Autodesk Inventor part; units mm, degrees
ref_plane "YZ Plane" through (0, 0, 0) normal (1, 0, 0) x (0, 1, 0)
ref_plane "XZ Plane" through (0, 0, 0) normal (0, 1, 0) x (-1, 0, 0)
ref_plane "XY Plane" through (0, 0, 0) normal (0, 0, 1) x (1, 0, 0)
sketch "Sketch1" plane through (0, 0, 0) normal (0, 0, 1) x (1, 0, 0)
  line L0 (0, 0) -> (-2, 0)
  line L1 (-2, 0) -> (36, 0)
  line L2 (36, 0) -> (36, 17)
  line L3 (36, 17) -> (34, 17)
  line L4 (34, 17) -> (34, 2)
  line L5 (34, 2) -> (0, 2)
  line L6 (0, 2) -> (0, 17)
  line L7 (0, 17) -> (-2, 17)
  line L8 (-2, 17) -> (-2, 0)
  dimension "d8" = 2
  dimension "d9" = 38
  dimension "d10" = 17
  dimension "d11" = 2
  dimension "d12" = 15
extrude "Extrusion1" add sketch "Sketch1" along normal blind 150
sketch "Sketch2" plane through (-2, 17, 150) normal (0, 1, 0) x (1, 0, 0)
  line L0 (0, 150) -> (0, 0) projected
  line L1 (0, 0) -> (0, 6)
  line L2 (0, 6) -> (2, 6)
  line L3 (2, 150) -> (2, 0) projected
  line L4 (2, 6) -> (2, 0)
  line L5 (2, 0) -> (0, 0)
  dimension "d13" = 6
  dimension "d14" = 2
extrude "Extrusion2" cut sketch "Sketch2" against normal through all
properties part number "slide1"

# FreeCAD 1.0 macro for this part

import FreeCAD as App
import Part
import Sketcher

V = App.Vector
Q = App.Units.Quantity

doc = App.newDocument("Part")
body = doc.addObject("PartDesign::Body", "Body")

sketch1 = body.newObject("Sketcher::SketchObject", "Sketch")
sketch1.AttachmentSupport = (doc.getObject("XY_Plane"), [""])
sketch1.MapMode = "FlatFace"
sketch1.addGeometry([
    Part.LineSegment(V(-2, 0, 0), V(36, 0, 0)),
    Part.LineSegment(V(36, 0, 0), V(36, 17, 0)),
    Part.LineSegment(V(36, 17, 0), V(34, 17, 0)),
    Part.LineSegment(V(34, 17, 0), V(34, 2, 0)),
    Part.LineSegment(V(34, 2, 0), V(0, 2, 0)),
    Part.LineSegment(V(0, 2, 0), V(0, 17, 0)),
    Part.LineSegment(V(0, 17, 0), V(-2, 17, 0)),
    Part.LineSegment(V(-2, 17, 0), V(-2, 0, 0)),
], False)
sketch1.addConstraint([
    Sketcher.Constraint("Coincident", 0, 2, 1, 1),
    Sketcher.Constraint("Coincident", 1, 2, 2, 1),
    Sketcher.Constraint("Coincident", 2, 2, 3, 1),
    Sketcher.Constraint("Coincident", 3, 2, 4, 1),
    Sketcher.Constraint("Coincident", 4, 2, 5, 1),
    Sketcher.Constraint("Coincident", 5, 2, 6, 1),
    Sketcher.Constraint("Coincident", 6, 2, 7, 1),
    Sketcher.Constraint("Coincident", 7, 2, 0, 1),
    Sketcher.Constraint("Horizontal", 0),
    Sketcher.Constraint("Vertical", 1),
    Sketcher.Constraint("Horizontal", 2),
    Sketcher.Constraint("Vertical", 3),
    Sketcher.Constraint("Horizontal", 4),
    Sketcher.Constraint("Vertical", 5),
    Sketcher.Constraint("Horizontal", 6),
    Sketcher.Constraint("Vertical", 7),
    Sketcher.Constraint("PointOnObject", 0, 2, -1),
    Sketcher.Constraint("PointOnObject", 4, 2, -2),
    Sketcher.Constraint("Horizontal", 2, 2, 5, 2),
    Sketcher.Constraint("Equal", 2, 6),
    Sketcher.Constraint("DistanceX", 0, 1, 0, 2, Q("38 mm")),
    Sketcher.Constraint("DistanceX", 2, 2, 2, 1, Q("2 mm")),
    Sketcher.Constraint("DistanceY", 1, 1, 1, 2, Q("17 mm")),
    Sketcher.Constraint("DistanceY", 3, 2, 3, 1, Q("15 mm")),
])
pad1 = body.newObject("PartDesign::Pad", "Pad")
pad1.Profile = sketch1
pad1.Length = 150

sketch2 = body.newObject("Sketcher::SketchObject", "Sketch001")
sketch2.AttachmentSupport = (doc.getObject("XZ_Plane"), [""])
sketch2.MapMode = "FlatFace"
sketch2.AttachmentOffset = App.Placement(V(0, 0, -17), App.Rotation())
sketch2.addGeometry([
    Part.LineSegment(V(0, 144, 0), V(-2, 144, 0)),
    Part.LineSegment(V(-2, 144, 0), V(-2, 150, 0)),
    Part.LineSegment(V(-2, 150, 0), V(0, 150, 0)),
    Part.LineSegment(V(0, 150, 0), V(0, 144, 0)),
], False)
sketch2.addConstraint([
    Sketcher.Constraint("Coincident", 0, 2, 1, 1),
    Sketcher.Constraint("Coincident", 1, 2, 2, 1),
    Sketcher.Constraint("Coincident", 2, 2, 3, 1),
    Sketcher.Constraint("Coincident", 3, 2, 0, 1),
    Sketcher.Constraint("Horizontal", 0),
    Sketcher.Constraint("Vertical", 1),
    Sketcher.Constraint("Horizontal", 2),
    Sketcher.Constraint("Vertical", 3),
    Sketcher.Constraint("PointOnObject", 2, 2, -2),
    Sketcher.Constraint("DistanceX", 0, 2, 0, 1, Q("2 mm")),
    Sketcher.Constraint("DistanceY", 1, 1, 1, 2, Q("6 mm")),
    Sketcher.Constraint("DistanceY", -1, 1, 0, 2, Q("144 mm")),
])
pocket1 = body.newObject("PartDesign::Pocket", "Pocket")
pocket1.Profile = sketch2
pocket1.Type = "ThroughAll"
pocket1.Reversed = True

doc.recompute()
